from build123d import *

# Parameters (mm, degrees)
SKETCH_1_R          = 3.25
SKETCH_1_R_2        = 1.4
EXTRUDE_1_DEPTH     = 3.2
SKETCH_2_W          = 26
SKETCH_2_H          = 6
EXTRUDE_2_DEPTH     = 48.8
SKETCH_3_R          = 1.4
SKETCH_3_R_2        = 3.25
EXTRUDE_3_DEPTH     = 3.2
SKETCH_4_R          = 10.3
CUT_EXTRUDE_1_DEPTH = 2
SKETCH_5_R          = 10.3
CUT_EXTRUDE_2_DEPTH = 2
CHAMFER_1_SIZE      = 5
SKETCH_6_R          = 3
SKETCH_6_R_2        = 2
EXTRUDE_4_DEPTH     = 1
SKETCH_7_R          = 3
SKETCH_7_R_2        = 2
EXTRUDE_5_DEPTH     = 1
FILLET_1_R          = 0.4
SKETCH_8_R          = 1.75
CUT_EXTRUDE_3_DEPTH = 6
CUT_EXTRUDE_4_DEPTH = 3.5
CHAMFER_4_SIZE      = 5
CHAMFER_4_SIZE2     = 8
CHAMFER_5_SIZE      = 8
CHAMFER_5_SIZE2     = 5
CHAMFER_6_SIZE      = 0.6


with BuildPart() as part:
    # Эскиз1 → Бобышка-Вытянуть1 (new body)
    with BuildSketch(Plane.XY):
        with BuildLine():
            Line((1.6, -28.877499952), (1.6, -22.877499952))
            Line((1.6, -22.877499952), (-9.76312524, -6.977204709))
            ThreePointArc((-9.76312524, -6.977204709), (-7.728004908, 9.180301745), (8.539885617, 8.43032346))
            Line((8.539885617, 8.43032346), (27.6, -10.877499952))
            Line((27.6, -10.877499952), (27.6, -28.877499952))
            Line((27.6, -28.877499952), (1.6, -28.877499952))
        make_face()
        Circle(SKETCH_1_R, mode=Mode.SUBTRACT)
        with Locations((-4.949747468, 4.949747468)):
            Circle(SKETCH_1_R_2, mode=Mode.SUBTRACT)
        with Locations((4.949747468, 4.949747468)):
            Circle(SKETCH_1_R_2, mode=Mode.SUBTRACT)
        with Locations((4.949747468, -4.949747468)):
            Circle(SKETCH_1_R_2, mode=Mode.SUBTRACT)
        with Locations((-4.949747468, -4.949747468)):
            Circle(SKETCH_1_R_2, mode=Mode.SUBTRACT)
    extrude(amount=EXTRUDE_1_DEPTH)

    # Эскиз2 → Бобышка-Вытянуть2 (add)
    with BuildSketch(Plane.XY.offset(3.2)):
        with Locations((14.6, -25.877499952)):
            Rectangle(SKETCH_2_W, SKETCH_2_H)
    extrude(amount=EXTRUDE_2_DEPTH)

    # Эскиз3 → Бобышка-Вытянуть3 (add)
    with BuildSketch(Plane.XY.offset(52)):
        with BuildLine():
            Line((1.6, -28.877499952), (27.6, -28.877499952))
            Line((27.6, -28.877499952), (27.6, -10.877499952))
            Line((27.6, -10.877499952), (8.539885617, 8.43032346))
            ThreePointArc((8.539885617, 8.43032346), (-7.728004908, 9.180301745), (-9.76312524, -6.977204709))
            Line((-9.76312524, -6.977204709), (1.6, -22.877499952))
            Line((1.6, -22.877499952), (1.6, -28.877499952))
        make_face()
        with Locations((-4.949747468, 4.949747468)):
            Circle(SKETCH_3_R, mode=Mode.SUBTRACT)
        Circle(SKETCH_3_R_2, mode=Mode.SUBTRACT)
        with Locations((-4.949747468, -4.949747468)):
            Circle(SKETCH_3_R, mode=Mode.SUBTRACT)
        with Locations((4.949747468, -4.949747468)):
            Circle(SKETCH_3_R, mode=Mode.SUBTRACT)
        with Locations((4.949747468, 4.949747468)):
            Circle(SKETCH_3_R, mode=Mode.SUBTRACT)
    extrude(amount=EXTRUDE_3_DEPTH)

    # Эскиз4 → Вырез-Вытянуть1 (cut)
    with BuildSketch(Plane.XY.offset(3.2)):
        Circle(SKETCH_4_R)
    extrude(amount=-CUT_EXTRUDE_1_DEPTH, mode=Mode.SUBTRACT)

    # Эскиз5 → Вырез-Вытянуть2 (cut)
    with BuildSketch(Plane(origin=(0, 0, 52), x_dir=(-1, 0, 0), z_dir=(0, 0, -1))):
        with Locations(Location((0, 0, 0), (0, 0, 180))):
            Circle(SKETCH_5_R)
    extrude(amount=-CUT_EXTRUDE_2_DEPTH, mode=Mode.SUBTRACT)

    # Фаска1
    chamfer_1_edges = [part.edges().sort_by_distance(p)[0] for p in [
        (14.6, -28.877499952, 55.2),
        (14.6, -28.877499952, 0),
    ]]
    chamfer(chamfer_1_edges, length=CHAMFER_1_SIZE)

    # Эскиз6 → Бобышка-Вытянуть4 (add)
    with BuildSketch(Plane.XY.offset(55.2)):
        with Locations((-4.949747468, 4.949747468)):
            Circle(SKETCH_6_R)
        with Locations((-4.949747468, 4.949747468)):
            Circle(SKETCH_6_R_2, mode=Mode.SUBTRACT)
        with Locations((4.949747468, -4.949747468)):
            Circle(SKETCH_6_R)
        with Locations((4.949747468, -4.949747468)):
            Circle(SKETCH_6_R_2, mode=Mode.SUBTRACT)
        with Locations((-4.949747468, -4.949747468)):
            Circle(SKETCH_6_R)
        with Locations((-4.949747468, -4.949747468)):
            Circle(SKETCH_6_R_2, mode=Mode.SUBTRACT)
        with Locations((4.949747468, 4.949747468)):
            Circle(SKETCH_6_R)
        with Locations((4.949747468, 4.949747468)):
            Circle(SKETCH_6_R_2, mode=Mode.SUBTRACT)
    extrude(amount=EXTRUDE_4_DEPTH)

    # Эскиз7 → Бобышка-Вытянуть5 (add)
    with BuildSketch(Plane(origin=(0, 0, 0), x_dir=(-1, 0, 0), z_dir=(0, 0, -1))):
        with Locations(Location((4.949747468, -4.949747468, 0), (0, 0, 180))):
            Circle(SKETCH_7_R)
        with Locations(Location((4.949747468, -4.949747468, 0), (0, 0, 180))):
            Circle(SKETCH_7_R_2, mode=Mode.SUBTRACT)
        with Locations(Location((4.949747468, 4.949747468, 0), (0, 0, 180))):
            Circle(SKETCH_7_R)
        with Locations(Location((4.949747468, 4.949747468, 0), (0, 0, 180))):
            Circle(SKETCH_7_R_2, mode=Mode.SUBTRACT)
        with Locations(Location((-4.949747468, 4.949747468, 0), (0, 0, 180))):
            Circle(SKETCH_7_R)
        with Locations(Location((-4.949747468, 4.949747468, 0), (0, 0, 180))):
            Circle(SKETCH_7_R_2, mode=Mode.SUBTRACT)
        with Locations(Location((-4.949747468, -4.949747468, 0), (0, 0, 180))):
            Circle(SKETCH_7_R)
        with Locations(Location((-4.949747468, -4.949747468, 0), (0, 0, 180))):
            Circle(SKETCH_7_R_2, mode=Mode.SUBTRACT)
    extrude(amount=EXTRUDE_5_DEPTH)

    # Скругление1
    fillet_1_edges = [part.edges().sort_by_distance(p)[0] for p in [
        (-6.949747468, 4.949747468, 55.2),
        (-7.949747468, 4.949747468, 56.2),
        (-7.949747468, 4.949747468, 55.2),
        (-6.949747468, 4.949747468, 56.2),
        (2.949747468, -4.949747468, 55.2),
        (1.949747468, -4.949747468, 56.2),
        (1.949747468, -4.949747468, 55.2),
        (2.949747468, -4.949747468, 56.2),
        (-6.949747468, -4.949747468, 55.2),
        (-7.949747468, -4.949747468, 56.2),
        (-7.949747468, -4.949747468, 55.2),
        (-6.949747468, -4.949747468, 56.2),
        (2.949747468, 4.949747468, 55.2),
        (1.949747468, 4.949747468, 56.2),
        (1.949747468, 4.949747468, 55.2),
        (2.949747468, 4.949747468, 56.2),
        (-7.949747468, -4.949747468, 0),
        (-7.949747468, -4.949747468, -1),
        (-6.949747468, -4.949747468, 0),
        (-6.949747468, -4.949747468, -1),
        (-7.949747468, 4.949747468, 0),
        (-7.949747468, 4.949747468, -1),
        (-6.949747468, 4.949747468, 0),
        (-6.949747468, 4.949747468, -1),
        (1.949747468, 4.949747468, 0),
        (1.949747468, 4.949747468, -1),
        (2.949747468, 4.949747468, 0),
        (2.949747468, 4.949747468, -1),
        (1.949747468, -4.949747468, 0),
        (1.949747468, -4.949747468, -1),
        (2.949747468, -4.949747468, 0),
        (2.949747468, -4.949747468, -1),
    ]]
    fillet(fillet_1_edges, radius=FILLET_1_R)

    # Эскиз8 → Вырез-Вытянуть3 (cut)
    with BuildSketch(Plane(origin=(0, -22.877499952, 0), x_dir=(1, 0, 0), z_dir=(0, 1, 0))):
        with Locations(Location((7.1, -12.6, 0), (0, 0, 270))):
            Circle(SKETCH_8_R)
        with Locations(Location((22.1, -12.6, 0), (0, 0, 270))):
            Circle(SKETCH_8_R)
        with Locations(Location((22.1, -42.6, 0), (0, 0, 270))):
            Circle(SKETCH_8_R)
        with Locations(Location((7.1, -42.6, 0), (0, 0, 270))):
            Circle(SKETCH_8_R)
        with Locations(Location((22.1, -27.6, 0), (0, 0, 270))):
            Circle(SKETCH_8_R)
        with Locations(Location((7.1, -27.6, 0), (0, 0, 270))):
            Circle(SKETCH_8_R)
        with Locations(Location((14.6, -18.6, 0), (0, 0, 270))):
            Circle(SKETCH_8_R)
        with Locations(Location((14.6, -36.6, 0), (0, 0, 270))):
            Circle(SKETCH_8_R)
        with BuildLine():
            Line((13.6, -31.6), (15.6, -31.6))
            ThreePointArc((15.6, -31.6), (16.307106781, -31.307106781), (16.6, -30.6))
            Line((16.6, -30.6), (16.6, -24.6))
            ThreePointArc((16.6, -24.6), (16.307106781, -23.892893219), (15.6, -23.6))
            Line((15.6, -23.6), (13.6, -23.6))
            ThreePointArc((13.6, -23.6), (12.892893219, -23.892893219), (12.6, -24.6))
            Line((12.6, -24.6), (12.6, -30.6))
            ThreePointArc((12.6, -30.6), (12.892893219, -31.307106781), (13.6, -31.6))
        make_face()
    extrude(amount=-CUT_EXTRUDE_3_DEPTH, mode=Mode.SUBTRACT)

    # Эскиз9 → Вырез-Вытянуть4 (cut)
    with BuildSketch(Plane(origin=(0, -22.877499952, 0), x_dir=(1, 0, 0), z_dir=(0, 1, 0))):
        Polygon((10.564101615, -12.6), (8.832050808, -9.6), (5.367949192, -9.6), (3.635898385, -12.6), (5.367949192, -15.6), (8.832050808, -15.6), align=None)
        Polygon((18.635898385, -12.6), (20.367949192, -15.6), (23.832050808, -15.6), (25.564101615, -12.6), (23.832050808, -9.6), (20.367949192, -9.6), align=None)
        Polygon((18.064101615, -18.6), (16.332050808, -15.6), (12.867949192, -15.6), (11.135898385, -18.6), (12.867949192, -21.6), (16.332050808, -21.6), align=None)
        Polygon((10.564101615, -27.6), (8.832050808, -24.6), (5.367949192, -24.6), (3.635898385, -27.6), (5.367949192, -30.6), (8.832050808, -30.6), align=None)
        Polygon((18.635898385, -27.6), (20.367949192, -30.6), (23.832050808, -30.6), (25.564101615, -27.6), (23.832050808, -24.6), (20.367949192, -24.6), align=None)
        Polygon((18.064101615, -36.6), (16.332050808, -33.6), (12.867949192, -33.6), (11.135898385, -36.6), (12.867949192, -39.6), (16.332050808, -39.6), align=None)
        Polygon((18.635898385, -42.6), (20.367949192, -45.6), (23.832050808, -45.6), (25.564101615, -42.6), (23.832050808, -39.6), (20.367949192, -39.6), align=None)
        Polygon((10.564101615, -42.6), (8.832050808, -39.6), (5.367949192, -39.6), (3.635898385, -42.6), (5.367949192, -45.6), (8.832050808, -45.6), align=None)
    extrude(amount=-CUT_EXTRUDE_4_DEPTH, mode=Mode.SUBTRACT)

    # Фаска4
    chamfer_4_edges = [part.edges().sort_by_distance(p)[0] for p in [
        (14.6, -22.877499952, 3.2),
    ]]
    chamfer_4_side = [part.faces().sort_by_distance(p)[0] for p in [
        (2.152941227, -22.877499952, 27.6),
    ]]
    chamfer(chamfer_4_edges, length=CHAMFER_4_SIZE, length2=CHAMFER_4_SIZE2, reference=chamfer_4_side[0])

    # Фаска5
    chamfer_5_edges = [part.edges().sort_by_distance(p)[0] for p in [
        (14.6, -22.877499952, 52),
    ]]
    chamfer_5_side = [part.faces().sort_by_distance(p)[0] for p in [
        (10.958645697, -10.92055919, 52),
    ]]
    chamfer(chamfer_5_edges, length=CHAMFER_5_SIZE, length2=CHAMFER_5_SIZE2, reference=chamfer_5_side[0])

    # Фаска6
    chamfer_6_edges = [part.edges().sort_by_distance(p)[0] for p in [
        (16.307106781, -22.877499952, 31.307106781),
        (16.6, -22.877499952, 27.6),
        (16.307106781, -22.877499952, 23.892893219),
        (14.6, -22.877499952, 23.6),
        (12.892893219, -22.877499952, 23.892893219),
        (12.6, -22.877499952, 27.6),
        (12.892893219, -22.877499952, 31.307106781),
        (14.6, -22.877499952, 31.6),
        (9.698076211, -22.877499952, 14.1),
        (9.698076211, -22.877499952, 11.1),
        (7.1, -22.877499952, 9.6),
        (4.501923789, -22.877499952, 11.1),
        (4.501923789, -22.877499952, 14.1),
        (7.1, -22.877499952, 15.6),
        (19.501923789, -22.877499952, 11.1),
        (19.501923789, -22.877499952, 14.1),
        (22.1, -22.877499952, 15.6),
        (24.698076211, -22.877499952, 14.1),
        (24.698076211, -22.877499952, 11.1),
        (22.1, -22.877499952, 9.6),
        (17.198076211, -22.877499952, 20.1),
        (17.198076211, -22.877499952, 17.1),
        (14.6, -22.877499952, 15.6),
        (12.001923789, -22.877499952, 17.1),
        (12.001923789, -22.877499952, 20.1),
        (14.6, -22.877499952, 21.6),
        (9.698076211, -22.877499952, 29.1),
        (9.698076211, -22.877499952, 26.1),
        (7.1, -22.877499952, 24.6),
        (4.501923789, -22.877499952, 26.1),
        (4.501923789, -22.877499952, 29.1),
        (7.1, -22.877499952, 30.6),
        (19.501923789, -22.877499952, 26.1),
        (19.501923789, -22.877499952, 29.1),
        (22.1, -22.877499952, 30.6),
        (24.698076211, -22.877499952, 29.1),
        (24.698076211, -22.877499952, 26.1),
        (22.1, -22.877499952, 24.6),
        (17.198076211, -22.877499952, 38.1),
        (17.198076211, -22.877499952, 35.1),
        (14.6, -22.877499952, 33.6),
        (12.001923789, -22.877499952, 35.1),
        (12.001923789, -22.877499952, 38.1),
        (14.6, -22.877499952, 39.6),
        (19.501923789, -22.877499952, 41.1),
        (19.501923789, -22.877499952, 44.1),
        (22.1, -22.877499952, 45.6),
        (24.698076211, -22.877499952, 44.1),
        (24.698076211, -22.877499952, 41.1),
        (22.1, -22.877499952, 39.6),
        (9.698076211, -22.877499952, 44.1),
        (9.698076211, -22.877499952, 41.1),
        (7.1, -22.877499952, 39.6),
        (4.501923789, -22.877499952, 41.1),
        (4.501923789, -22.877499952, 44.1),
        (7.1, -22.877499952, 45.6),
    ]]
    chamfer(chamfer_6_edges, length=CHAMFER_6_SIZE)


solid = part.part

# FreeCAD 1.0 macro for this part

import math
import FreeCAD as App
import Part
import Sketcher
Q = App.Units.Quantity


def edges_at(feature, points):
    """Names of the edges that pass closest to the given points."""
    edges = feature.Shape.Edges
    near = lambda p: min(range(len(edges)), key=lambda i: edges[i].distToShape(Part.Vertex(*p))[0])
    return sorted({f"Edge{near(p) + 1}" for p in points})

doc = App.newDocument("Part")
body = doc.addObject("PartDesign::Body", "Body")

sketch1 = body.newObject("Sketcher::SketchObject", "Sketch")
sketch1.AttachmentSupport = (doc.getObject("XY_Plane"), [""])
sketch1.MapMode = "FlatFace"
sketch1.addGeometry(Part.LineSegment(App.Vector(1.6, -22.9, 0), App.Vector(1.6, -28.9, 0)), False)
sketch1.addGeometry(Part.LineSegment(App.Vector(1.6, -28.9, 0), App.Vector(27.6, -28.9, 0)), False)
sketch1.addGeometry(Part.LineSegment(App.Vector(27.6, -28.9, 0), App.Vector(27.6, -10.9, 0)), False)
sketch1.addGeometry(Part.LineSegment(App.Vector(27.6, -10.9, 0), App.Vector(8.5, 8.4, 0)), False)
sketch1.addGeometry(Part.ArcOfCircle(Part.Circle(App.Vector(0, 0, 0), App.Vector(0, 0, 1), 12), math.radians(45), math.radians(216)), False)
sketch1.addGeometry(Part.LineSegment(App.Vector(-9.8, -7, 0), App.Vector(1.6, -22.9, 0)), False)
sketch1.addGeometry(Part.Circle(App.Vector(4.9, -4.9, 0), App.Vector(0, 0, 1), 1.4), False)
sketch1.addGeometry(Part.Circle(App.Vector(-4.9, -4.9, 0), App.Vector(0, 0, 1), 1.4), False)
sketch1.addGeometry(Part.Circle(App.Vector(4.9, 4.9, 0), App.Vector(0, 0, 1), 1.4), False)
sketch1.addGeometry(Part.Circle(App.Vector(0, 0, 0), App.Vector(0, 0, 1), 3.2), False)
sketch1.addGeometry(Part.Circle(App.Vector(-4.9, 4.9, 0), App.Vector(0, 0, 1), 1.4), False)
sketch1.addConstraint(Sketcher.Constraint("Coincident", 0, 2, 1, 1))
sketch1.addConstraint(Sketcher.Constraint("Coincident", 1, 2, 2, 1))
sketch1.addConstraint(Sketcher.Constraint("Coincident", 2, 2, 3, 1))
sketch1.addConstraint(Sketcher.Constraint("Tangent", 3, 2, 4, 1))
sketch1.addConstraint(Sketcher.Constraint("Tangent", 4, 2, 5, 1))
sketch1.addConstraint(Sketcher.Constraint("Coincident", 5, 2, 0, 1))
sketch1.addConstraint(Sketcher.Constraint("Vertical", 0))
sketch1.addConstraint(Sketcher.Constraint("Horizontal", 1))
sketch1.addConstraint(Sketcher.Constraint("Vertical", 2))
sketch1.addConstraint(Sketcher.Constraint("Coincident", 4, 3, -1, 1))
sketch1.addConstraint(Sketcher.Constraint("Coincident", 9, 3, -1, 1))
sketch1.addConstraint(Sketcher.Constraint("Equal", 6, 7))
sketch1.addConstraint(Sketcher.Constraint("Equal", 7, 8))
sketch1.addConstraint(Sketcher.Constraint("Equal", 8, 10))
sketch1.addConstraint(Sketcher.Constraint("Symmetric", 7, 3, 8, 3, -1, 1))
sketch1.addConstraint(Sketcher.Constraint("Symmetric", 6, 3, 10, 3, -1, 1))
sketch1.addConstraint(Sketcher.Constraint("Symmetric", 6, 3, 7, 3, -2))
sketch1.addConstraint(Sketcher.Constraint("Radius", 4, Q("12 mm")))
sketch1.addConstraint(Sketcher.Constraint("Diameter", 6, Q("2.8 mm")))
sketch1.addConstraint(Sketcher.Constraint("Diameter", 9, Q("6.5 mm")))
sketch1.addConstraint(Sketcher.Constraint("DistanceX", 1, 1, 1, 2, Q("26 mm")))
sketch1.addConstraint(Sketcher.Constraint("DistanceY", 0, 2, 0, 1, Q("6 mm")))
sketch1.addConstraint(Sketcher.Constraint("DistanceY", 2, 1, 2, 2, Q("18 mm")))
sketch1.addConstraint(Sketcher.Constraint("DistanceX", -1, 1, 0, 2, Q("1.6 mm")))
sketch1.addConstraint(Sketcher.Constraint("DistanceY", 0, 2, -1, 1, Q("28.8775 mm")))
sketch1.addConstraint(Sketcher.Constraint("DistanceX", 8, 3, 3, 2, Q("3.590138 mm")))
sketch1.addConstraint(Sketcher.Constraint("DistanceY", 6, 3, 3, 2, Q("13.380071 mm")))
pad1 = body.newObject("PartDesign::Pad", "Pad")
pad1.Profile = sketch1
pad1.Length = 3.2

sketch2 = body.newObject("Sketcher::SketchObject", "Sketch001")
sketch2.AttachmentSupport = (doc.getObject("XY_Plane"), [""])
sketch2.MapMode = "FlatFace"
sketch2.AttachmentOffset = App.Placement(App.Vector(0, 0, 3.2), App.Rotation())
sketch2.addGeometry(Part.LineSegment(App.Vector(2, -23, 0), App.Vector(2, -29, 0)), False)
sketch2.addGeometry(Part.LineSegment(App.Vector(2, -29, 0), App.Vector(28, -29, 0)), False)
sketch2.addGeometry(Part.LineSegment(App.Vector(28, -29, 0), App.Vector(28, -23, 0)), False)
sketch2.addGeometry(Part.LineSegment(App.Vector(28, -23, 0), App.Vector(2, -23, 0)), False)
sketch2.addConstraint(Sketcher.Constraint("Coincident", 0, 2, 1, 1))
sketch2.addConstraint(Sketcher.Constraint("Coincident", 1, 2, 2, 1))
sketch2.addConstraint(Sketcher.Constraint("Coincident", 2, 2, 3, 1))
sketch2.addConstraint(Sketcher.Constraint("Coincident", 3, 2, 0, 1))
sketch2.addConstraint(Sketcher.Constraint("Vertical", 0))
sketch2.addConstraint(Sketcher.Constraint("Horizontal", 1))
sketch2.addConstraint(Sketcher.Constraint("Vertical", 2))
sketch2.addConstraint(Sketcher.Constraint("Horizontal", 3))
sketch2.addConstraint(Sketcher.Constraint("DistanceX", 1, 1, 1, 2, Q("26 mm")))
sketch2.addConstraint(Sketcher.Constraint("DistanceY", 0, 2, 0, 1, Q("6 mm")))
sketch2.addConstraint(Sketcher.Constraint("DistanceX", -1, 1, 0, 2, Q("1.6 mm")))
sketch2.addConstraint(Sketcher.Constraint("DistanceY", 0, 2, -1, 1, Q("28.8775 mm")))
pad2 = body.newObject("PartDesign::Pad", "Pad001")
pad2.Profile = sketch2
pad2.Length = 48.8

sketch3 = body.newObject("Sketcher::SketchObject", "Sketch002")
sketch3.AttachmentSupport = (doc.getObject("XY_Plane"), [""])
sketch3.MapMode = "FlatFace"
sketch3.AttachmentOffset = App.Placement(App.Vector(0, 0, 52), App.Rotation())
sketch3.addGeometry(Part.LineSegment(App.Vector(1.6, -28.9, 0), App.Vector(27.6, -28.9, 0)), False)
sketch3.addGeometry(Part.LineSegment(App.Vector(27.6, -28.9, 0), App.Vector(27.6, -10.9, 0)), False)
sketch3.addGeometry(Part.LineSegment(App.Vector(27.6, -10.9, 0), App.Vector(8.5, 8.4, 0)), False)
sketch3.addGeometry(Part.ArcOfCircle(Part.Circle(App.Vector(0, 0, 0), App.Vector(0, 0, 1), 12), math.radians(45), math.radians(216)), False)
sketch3.addGeometry(Part.LineSegment(App.Vector(-9.8, -7, 0), App.Vector(1.6, -22.9, 0)), False)
sketch3.addGeometry(Part.LineSegment(App.Vector(1.6, -22.9, 0), App.Vector(1.6, -28.9, 0)), False)
sketch3.addGeometry(Part.Circle(App.Vector(-4.9, -4.9, 0), App.Vector(0, 0, 1), 1.4), False)
sketch3.addGeometry(Part.Circle(App.Vector(4.9, -4.9, 0), App.Vector(0, 0, 1), 1.4), False)
sketch3.addGeometry(Part.Circle(App.Vector(-4.9, 4.9, 0), App.Vector(0, 0, 1), 1.4), False)
sketch3.addGeometry(Part.Circle(App.Vector(0, 0, 0), App.Vector(0, 0, 1), 3.2), False)
sketch3.addGeometry(Part.Circle(App.Vector(4.9, 4.9, 0), App.Vector(0, 0, 1), 1.4), False)
sketch3.addConstraint(Sketcher.Constraint("Coincident", 0, 2, 1, 1))
sketch3.addConstraint(Sketcher.Constraint("Coincident", 1, 2, 2, 1))
sketch3.addConstraint(Sketcher.Constraint("Tangent", 2, 2, 3, 1))
sketch3.addConstraint(Sketcher.Constraint("Tangent", 3, 2, 4, 1))
sketch3.addConstraint(Sketcher.Constraint("Coincident", 4, 2, 5, 1))
sketch3.addConstraint(Sketcher.Constraint("Coincident", 5, 2, 0, 1))
sketch3.addConstraint(Sketcher.Constraint("Horizontal", 0))
sketch3.addConstraint(Sketcher.Constraint("Vertical", 1))
sketch3.addConstraint(Sketcher.Constraint("Vertical", 5))
sketch3.addConstraint(Sketcher.Constraint("Coincident", 3, 3, -1, 1))
sketch3.addConstraint(Sketcher.Constraint("Coincident", 9, 3, -1, 1))
sketch3.addConstraint(Sketcher.Constraint("Equal", 6, 7))
sketch3.addConstraint(Sketcher.Constraint("Equal", 7, 8))
sketch3.addConstraint(Sketcher.Constraint("Equal", 8, 10))
sketch3.addConstraint(Sketcher.Constraint("Symmetric", 7, 3, 8, 3, -1, 1))
sketch3.addConstraint(Sketcher.Constraint("Symmetric", 6, 3, 10, 3, -1, 1))
sketch3.addConstraint(Sketcher.Constraint("Symmetric", 6, 3, 7, 3, -2))
sketch3.addConstraint(Sketcher.Constraint("Radius", 3, Q("12 mm")))
sketch3.addConstraint(Sketcher.Constraint("Diameter", 6, Q("2.8 mm")))
sketch3.addConstraint(Sketcher.Constraint("Diameter", 9, Q("6.5 mm")))
sketch3.addConstraint(Sketcher.Constraint("DistanceX", 0, 1, 0, 2, Q("26 mm")))
sketch3.addConstraint(Sketcher.Constraint("DistanceY", 1, 1, 1, 2, Q("18 mm")))
sketch3.addConstraint(Sketcher.Constraint("DistanceY", 5, 2, 5, 1, Q("6 mm")))
sketch3.addConstraint(Sketcher.Constraint("DistanceX", -1, 1, 0, 2, Q("27.6 mm")))
sketch3.addConstraint(Sketcher.Constraint("DistanceY", 0, 2, -1, 1, Q("28.8775 mm")))
sketch3.addConstraint(Sketcher.Constraint("DistanceX", 10, 3, 2, 2, Q("3.590138 mm")))
sketch3.addConstraint(Sketcher.Constraint("DistanceY", 7, 3, 2, 2, Q("13.380071 mm")))
pad3 = body.newObject("PartDesign::Pad", "Pad002")
pad3.Profile = sketch3
pad3.Length = 3.2

sketch4 = body.newObject("Sketcher::SketchObject", "Sketch003")
sketch4.AttachmentSupport = (doc.getObject("XY_Plane"), [""])
sketch4.MapMode = "FlatFace"
sketch4.AttachmentOffset = App.Placement(App.Vector(0, 0, 3.2), App.Rotation())
sketch4.addGeometry(Part.Circle(App.Vector(0, 0, 0), App.Vector(0, 0, 1), 10), False)
sketch4.addConstraint(Sketcher.Constraint("Coincident", 0, 3, -1, 1))
sketch4.addConstraint(Sketcher.Constraint("Diameter", 0, Q("20.6 mm")))
pocket1 = body.newObject("PartDesign::Pocket", "Pocket")
pocket1.Profile = sketch4
pocket1.Length = 2

sketch5 = body.newObject("Sketcher::SketchObject", "Sketch004")
sketch5.AttachmentSupport = (doc.getObject("XY_Plane"), [""])
sketch5.MapMode = "FlatFace"
sketch5.AttachmentOffset = App.Placement(App.Vector(0, 0, 52), App.Rotation())
sketch5.addGeometry(Part.Circle(App.Vector(0, 0, 0), App.Vector(0, 0, 1), 10), False)
sketch5.addConstraint(Sketcher.Constraint("Coincident", 0, 3, -1, 1))
sketch5.addConstraint(Sketcher.Constraint("Diameter", 0, Q("20.6 mm")))
pocket2 = body.newObject("PartDesign::Pocket", "Pocket001")
pocket2.Profile = sketch5
pocket2.Length = 2
pocket2.Reversed = True
doc.recompute()

chamfer = body.newObject("PartDesign::Chamfer", "Chamfer")
chamfer.Base = (pocket2, edges_at(pocket2, [(14.6, -28.877, 55.2), (14.6, -28.877, 0)]))
chamfer.Size = 5

sketch6 = body.newObject("Sketcher::SketchObject", "Sketch005")
sketch6.AttachmentSupport = (doc.getObject("XY_Plane"), [""])
sketch6.MapMode = "FlatFace"
sketch6.AttachmentOffset = App.Placement(App.Vector(0, 0, 55.2), App.Rotation())
sketch6.addGeometry(Part.Circle(App.Vector(-4.9, 4.9, 0), App.Vector(0, 0, 1), 3), False)
sketch6.addGeometry(Part.Circle(App.Vector(-4.9, 4.9, 0), App.Vector(0, 0, 1), 2), False)
sketch6.addGeometry(Part.Circle(App.Vector(4.9, -4.9, 0), App.Vector(0, 0, 1), 3), False)
sketch6.addGeometry(Part.Circle(App.Vector(4.9, -4.9, 0), App.Vector(0, 0, 1), 2), False)
sketch6.addGeometry(Part.Circle(App.Vector(-4.9, -4.9, 0), App.Vector(0, 0, 1), 3), False)
sketch6.addGeometry(Part.Circle(App.Vector(-4.9, -4.9, 0), App.Vector(0, 0, 1), 2), False)
sketch6.addGeometry(Part.Circle(App.Vector(4.9, 4.9, 0), App.Vector(0, 0, 1), 3), False)
sketch6.addGeometry(Part.Circle(App.Vector(4.9, 4.9, 0), App.Vector(0, 0, 1), 2), False)
sketch6.addConstraint(Sketcher.Constraint("Coincident", 1, 3, 0, 3))
sketch6.addConstraint(Sketcher.Constraint("Coincident", 3, 3, 2, 3))
sketch6.addConstraint(Sketcher.Constraint("Coincident", 5, 3, 4, 3))
sketch6.addConstraint(Sketcher.Constraint("Coincident", 7, 3, 6, 3))
sketch6.addConstraint(Sketcher.Constraint("Equal", 0, 2))
sketch6.addConstraint(Sketcher.Constraint("Equal", 1, 3))
sketch6.addConstraint(Sketcher.Constraint("Equal", 2, 4))
sketch6.addConstraint(Sketcher.Constraint("Equal", 3, 5))
sketch6.addConstraint(Sketcher.Constraint("Equal", 4, 6))
sketch6.addConstraint(Sketcher.Constraint("Equal", 5, 7))
sketch6.addConstraint(Sketcher.Constraint("Symmetric", 0, 3, 2, 3, -1, 1))
sketch6.addConstraint(Sketcher.Constraint("Symmetric", 4, 3, 6, 3, -1, 1))
sketch6.addConstraint(Sketcher.Constraint("Symmetric", 2, 3, 4, 3, -2))
sketch6.addConstraint(Sketcher.Constraint("Diameter", 0, Q("6 mm")))
sketch6.addConstraint(Sketcher.Constraint("Diameter", 1, Q("4 mm")))
sketch6.addConstraint(Sketcher.Constraint("DistanceX", 0, 3, -1, 1, Q("4.949747 mm")))
sketch6.addConstraint(Sketcher.Constraint("DistanceY", -1, 1, 0, 3, Q("4.949747 mm")))
pad4 = body.newObject("PartDesign::Pad", "Pad003")
pad4.Profile = sketch6
pad4.Length = 1

sketch7 = body.newObject("Sketcher::SketchObject", "Sketch006")
sketch7.AttachmentSupport = (doc.getObject("XY_Plane"), [""])
sketch7.MapMode = "FlatFace"
sketch7.addGeometry(Part.Circle(App.Vector(-4.9, -4.9, 0), App.Vector(0, 0, 1), 3), False)
sketch7.addGeometry(Part.Circle(App.Vector(-4.9, -4.9, 0), App.Vector(0, 0, 1), 2), False)
sketch7.addGeometry(Part.Circle(App.Vector(-4.9, 4.9, 0), App.Vector(0, 0, 1), 3), False)
sketch7.addGeometry(Part.Circle(App.Vector(-4.9, 4.9, 0), App.Vector(0, 0, 1), 2), False)
sketch7.addGeometry(Part.Circle(App.Vector(4.9, 4.9, 0), App.Vector(0, 0, 1), 3), False)
sketch7.addGeometry(Part.Circle(App.Vector(4.9, 4.9, 0), App.Vector(0, 0, 1), 2), False)
sketch7.addGeometry(Part.Circle(App.Vector(4.9, -4.9, 0), App.Vector(0, 0, 1), 3), False)
sketch7.addGeometry(Part.Circle(App.Vector(4.9, -4.9, 0), App.Vector(0, 0, 1), 2), False)
sketch7.addConstraint(Sketcher.Constraint("Coincident", 1, 3, 0, 3))
sketch7.addConstraint(Sketcher.Constraint("Coincident", 3, 3, 2, 3))
sketch7.addConstraint(Sketcher.Constraint("Coincident", 5, 3, 4, 3))
sketch7.addConstraint(Sketcher.Constraint("Coincident", 7, 3, 6, 3))
sketch7.addConstraint(Sketcher.Constraint("Equal", 0, 2))
sketch7.addConstraint(Sketcher.Constraint("Equal", 1, 3))
sketch7.addConstraint(Sketcher.Constraint("Equal", 2, 4))
sketch7.addConstraint(Sketcher.Constraint("Equal", 3, 5))
sketch7.addConstraint(Sketcher.Constraint("Equal", 4, 6))
sketch7.addConstraint(Sketcher.Constraint("Equal", 5, 7))
sketch7.addConstraint(Sketcher.Constraint("Symmetric", 0, 3, 4, 3, -1, 1))
sketch7.addConstraint(Sketcher.Constraint("Symmetric", 2, 3, 6, 3, -1, 1))
sketch7.addConstraint(Sketcher.Constraint("Symmetric", 2, 3, 4, 3, -2))
sketch7.addConstraint(Sketcher.Constraint("Diameter", 0, Q("6 mm")))
sketch7.addConstraint(Sketcher.Constraint("Diameter", 1, Q("4 mm")))
sketch7.addConstraint(Sketcher.Constraint("DistanceX", 0, 3, -1, 1, Q("4.949747 mm")))
sketch7.addConstraint(Sketcher.Constraint("DistanceY", 0, 3, -1, 1, Q("4.949747 mm")))
pad5 = body.newObject("PartDesign::Pad", "Pad004")
pad5.Profile = sketch7
pad5.Length = 1
pad5.Reversed = True
doc.recompute()

fillet = body.newObject("PartDesign::Fillet", "Fillet")
fillet.Base = (pad5, edges_at(pad5, [
    (-6.95, 4.95, 55.2),
    (-7.95, 4.95, 56.2),
    (-7.95, 4.95, 55.2),
    (-6.95, 4.95, 56.2),
    (2.95, -4.95, 55.2),
    (1.95, -4.95, 56.2),
    (1.95, -4.95, 55.2),
    (2.95, -4.95, 56.2),
    (-6.95, -4.95, 55.2),
    (-7.95, -4.95, 56.2),
    (-7.95, -4.95, 55.2),
    (-6.95, -4.95, 56.2),
    (2.95, 4.95, 55.2),
    (1.95, 4.95, 56.2),
    (1.95, 4.95, 55.2),
    (2.95, 4.95, 56.2),
    (-7.95, -4.95, 0),
    (-7.95, -4.95, -1),
    (-6.95, -4.95, 0),
    (-6.95, -4.95, -1),
    (-7.95, 4.95, 0),
    (-7.95, 4.95, -1),
    (-6.95, 4.95, 0),
    (-6.95, 4.95, -1),
    (1.95, 4.95, 0),
    (1.95, 4.95, -1),
    (2.95, 4.95, 0),
    (2.95, 4.95, -1),
    (1.95, -4.95, 0),
    (1.95, -4.95, -1),
    (2.95, -4.95, 0),
    (2.95, -4.95, -1),
]))
fillet.Radius = 0.4

sketch8 = body.newObject("Sketcher::SketchObject", "Sketch007")
sketch8.AttachmentSupport = (doc.getObject("XZ_Plane"), [""])
sketch8.MapMode = "FlatFace"
sketch8.AttachmentOffset = App.Placement(App.Vector(0, 0, 22.8775), App.Rotation())
sketch8.addGeometry(Part.Circle(App.Vector(7.1, 12.6, 0), App.Vector(0, 0, 1), 1.8), False)
sketch8.addGeometry(Part.Circle(App.Vector(22.1, 12.6, 0), App.Vector(0, 0, 1), 1.8), False)
sketch8.addGeometry(Part.Circle(App.Vector(22.1, 42.6, 0), App.Vector(0, 0, 1), 1.8), False)
sketch8.addGeometry(Part.Circle(App.Vector(7.1, 42.6, 0), App.Vector(0, 0, 1), 1.8), False)
sketch8.addGeometry(Part.Circle(App.Vector(22.1, 27.6, 0), App.Vector(0, 0, 1), 1.8), False)
sketch8.addGeometry(Part.Circle(App.Vector(7.1, 27.6, 0), App.Vector(0, 0, 1), 1.8), False)
sketch8.addGeometry(Part.Circle(App.Vector(14.6, 18.6, 0), App.Vector(0, 0, 1), 1.8), False)
sketch8.addGeometry(Part.Circle(App.Vector(14.6, 36.6, 0), App.Vector(0, 0, 1), 1.8), False)
sketch8.addGeometry(Part.LineSegment(App.Vector(13.6, 31.6, 0), App.Vector(15.6, 31.6, 0)), False)
sketch8.addGeometry(Part.ArcOfCircle(Part.Circle(App.Vector(15.6, 30.6, 0), App.Vector(0, 0, 1), 1), math.radians(0), math.radians(90)), False)
sketch8.addGeometry(Part.LineSegment(App.Vector(16.6, 30.6, 0), App.Vector(16.6, 24.6, 0)), False)
sketch8.addGeometry(Part.ArcOfCircle(Part.Circle(App.Vector(15.6, 24.6, 0), App.Vector(0, 0, 1), 1), math.radians(-90), math.radians(0)), False)
sketch8.addGeometry(Part.LineSegment(App.Vector(15.6, 23.6, 0), App.Vector(13.6, 23.6, 0)), False)
sketch8.addGeometry(Part.ArcOfCircle(Part.Circle(App.Vector(13.6, 24.6, 0), App.Vector(0, 0, 1), 1), math.radians(-180), math.radians(-90)), False)
sketch8.addGeometry(Part.LineSegment(App.Vector(12.6, 24.6, 0), App.Vector(12.6, 30.6, 0)), False)
sketch8.addGeometry(Part.ArcOfCircle(Part.Circle(App.Vector(13.6, 30.6, 0), App.Vector(0, 0, 1), 1), math.radians(90), math.radians(180)), False)
sketch8.addConstraint(Sketcher.Constraint("Tangent", 8, 2, 9, 2))
sketch8.addConstraint(Sketcher.Constraint("Tangent", 9, 1, 10, 1))
sketch8.addConstraint(Sketcher.Constraint("Tangent", 10, 2, 11, 2))
sketch8.addConstraint(Sketcher.Constraint("Tangent", 11, 1, 12, 1))
sketch8.addConstraint(Sketcher.Constraint("Tangent", 12, 2, 13, 2))
sketch8.addConstraint(Sketcher.Constraint("Tangent", 13, 1, 14, 1))
sketch8.addConstraint(Sketcher.Constraint("Tangent", 14, 2, 15, 2))
sketch8.addConstraint(Sketcher.Constraint("Tangent", 15, 1, 8, 1))
sketch8.addConstraint(Sketcher.Constraint("Horizontal", 8))
sketch8.addConstraint(Sketcher.Constraint("Vertical", 10))
sketch8.addConstraint(Sketcher.Constraint("Horizontal", 12))
sketch8.addConstraint(Sketcher.Constraint("Vertical", 14))
sketch8.addConstraint(Sketcher.Constraint("Equal", 0, 1))
sketch8.addConstraint(Sketcher.Constraint("Equal", 1, 2))
sketch8.addConstraint(Sketcher.Constraint("Equal", 2, 3))
sketch8.addConstraint(Sketcher.Constraint("Equal", 3, 4))
sketch8.addConstraint(Sketcher.Constraint("Equal", 4, 5))
sketch8.addConstraint(Sketcher.Constraint("Equal", 5, 6))
sketch8.addConstraint(Sketcher.Constraint("Equal", 6, 7))
sketch8.addConstraint(Sketcher.Constraint("Equal", 9, 11))
sketch8.addConstraint(Sketcher.Constraint("Equal", 11, 13))
sketch8.addConstraint(Sketcher.Constraint("Equal", 13, 15))
sketch8.addConstraint(Sketcher.Constraint("Horizontal", 0, 3, 1, 3))
sketch8.addConstraint(Sketcher.Constraint("Horizontal", 2, 3, 3, 3))
sketch8.addConstraint(Sketcher.Constraint("Horizontal", 4, 3, 5, 3))
sketch8.addConstraint(Sketcher.Constraint("Vertical", 1, 3, 2, 3))
sketch8.addConstraint(Sketcher.Constraint("Vertical", 0, 3, 3, 3))
sketch8.addConstraint(Sketcher.Constraint("Vertical", 2, 3, 4, 3))
sketch8.addConstraint(Sketcher.Constraint("Vertical", 3, 3, 5, 3))
sketch8.addConstraint(Sketcher.Constraint("Vertical", 6, 3, 7, 3))
sketch8.addConstraint(Sketcher.Constraint("Radius", 9, Q("1 mm")))
sketch8.addConstraint(Sketcher.Constraint("Diameter", 0, Q("3.5 mm")))
sketch8.addConstraint(Sketcher.Constraint("DistanceX", 8, 1, 8, 2, Q("2 mm")))
sketch8.addConstraint(Sketcher.Constraint("DistanceY", 10, 2, 10, 1, Q("6 mm")))
sketch8.addConstraint(Sketcher.Constraint("DistanceX", 0, 3, 1, 3, Q("15 mm")))
sketch8.addConstraint(Sketcher.Constraint("DistanceY", 1, 3, 2, 3, Q("30 mm")))
sketch8.addConstraint(Sketcher.Constraint("DistanceY", 4, 3, 2, 3, Q("15 mm")))
sketch8.addConstraint(Sketcher.Constraint("DistanceY", 0, 3, 6, 3, Q("6 mm")))
sketch8.addConstraint(Sketcher.Constraint("DistanceY", 7, 3, 3, 3, Q("6 mm")))
sketch8.addConstraint(Sketcher.Constraint("DistanceX", 7, 3, 9, 3, Q("1 mm")))
sketch8.addConstraint(Sketcher.Constraint("DistanceY", 9, 3, 7, 3, Q("6 mm")))
sketch8.addConstraint(Sketcher.Constraint("DistanceX", -1, 1, 0, 3, Q("7.1 mm")))
sketch8.addConstraint(Sketcher.Constraint("DistanceY", -1, 1, 0, 3, Q("12.6 mm")))
sketch8.addConstraint(Sketcher.Constraint("DistanceX", -1, 1, 6, 3, Q("14.6 mm")))
pocket3 = body.newObject("PartDesign::Pocket", "Pocket002")
pocket3.Profile = sketch8
pocket3.Length = 6
pocket3.Reversed = True

sketch9 = body.newObject("Sketcher::SketchObject", "Sketch008")
sketch9.AttachmentSupport = (doc.getObject("XZ_Plane"), [""])
sketch9.MapMode = "FlatFace"
sketch9.AttachmentOffset = App.Placement(App.Vector(0, 0, 22.8775), App.Rotation())
sketch9.addGeometry(Part.LineSegment(App.Vector(10.6, 12.6, 0), App.Vector(8.8, 9.6, 0)), False)
sketch9.addGeometry(Part.LineSegment(App.Vector(8.8, 9.6, 0), App.Vector(5.4, 9.6, 0)), False)
sketch9.addGeometry(Part.LineSegment(App.Vector(5.4, 9.6, 0), App.Vector(3.6, 12.6, 0)), False)
sketch9.addGeometry(Part.LineSegment(App.Vector(3.6, 12.6, 0), App.Vector(5.4, 15.6, 0)), False)
sketch9.addGeometry(Part.LineSegment(App.Vector(5.4, 15.6, 0), App.Vector(8.8, 15.6, 0)), False)
sketch9.addGeometry(Part.LineSegment(App.Vector(8.8, 15.6, 0), App.Vector(10.6, 12.6, 0)), False)
sketch9.addGeometry(Part.LineSegment(App.Vector(18.6, 12.6, 0), App.Vector(20.4, 15.6, 0)), False)
sketch9.addGeometry(Part.LineSegment(App.Vector(20.4, 15.6, 0), App.Vector(23.8, 15.6, 0)), False)
sketch9.addGeometry(Part.LineSegment(App.Vector(23.8, 15.6, 0), App.Vector(25.6, 12.6, 0)), False)
sketch9.addGeometry(Part.LineSegment(App.Vector(25.6, 12.6, 0), App.Vector(23.8, 9.6, 0)), False)
sketch9.addGeometry(Part.LineSegment(App.Vector(23.8, 9.6, 0), App.Vector(20.4, 9.6, 0)), False)
sketch9.addGeometry(Part.LineSegment(App.Vector(20.4, 9.6, 0), App.Vector(18.6, 12.6, 0)), False)
sketch9.addGeometry(Part.LineSegment(App.Vector(18.1, 18.6, 0), App.Vector(16.3, 15.6, 0)), False)
sketch9.addGeometry(Part.LineSegment(App.Vector(16.3, 15.6, 0), App.Vector(12.9, 15.6, 0)), False)
sketch9.addGeometry(Part.LineSegment(App.Vector(12.9, 15.6, 0), App.Vector(11.1, 18.6, 0)), False)
sketch9.addGeometry(Part.LineSegment(App.Vector(11.1, 18.6, 0), App.Vector(12.9, 21.6, 0)), False)
sketch9.addGeometry(Part.LineSegment(App.Vector(12.9, 21.6, 0), App.Vector(16.3, 21.6, 0)), False)
sketch9.addGeometry(Part.LineSegment(App.Vector(16.3, 21.6, 0), App.Vector(18.1, 18.6, 0)), False)
sketch9.addGeometry(Part.LineSegment(App.Vector(10.6, 27.6, 0), App.Vector(8.8, 24.6, 0)), False)
sketch9.addGeometry(Part.LineSegment(App.Vector(8.8, 24.6, 0), App.Vector(5.4, 24.6, 0)), False)
sketch9.addGeometry(Part.LineSegment(App.Vector(5.4, 24.6, 0), App.Vector(3.6, 27.6, 0)), False)
sketch9.addGeometry(Part.LineSegment(App.Vector(3.6, 27.6, 0), App.Vector(5.4, 30.6, 0)), False)
sketch9.addGeometry(Part.LineSegment(App.Vector(5.4, 30.6, 0), App.Vector(8.8, 30.6, 0)), False)
sketch9.addGeometry(Part.LineSegment(App.Vector(8.8, 30.6, 0), App.Vector(10.6, 27.6, 0)), False)
sketch9.addGeometry(Part.LineSegment(App.Vector(18.6, 27.6, 0), App.Vector(20.4, 30.6, 0)), False)
sketch9.addGeometry(Part.LineSegment(App.Vector(20.4, 30.6, 0), App.Vector(23.8, 30.6, 0)), False)
sketch9.addGeometry(Part.LineSegment(App.Vector(23.8, 30.6, 0), App.Vector(25.6, 27.6, 0)), False)
sketch9.addGeometry(Part.LineSegment(App.Vector(25.6, 27.6, 0), App.Vector(23.8, 24.6, 0)), False)
sketch9.addGeometry(Part.LineSegment(App.Vector(23.8, 24.6, 0), App.Vector(20.4, 24.6, 0)), False)
sketch9.addGeometry(Part.LineSegment(App.Vector(20.4, 24.6, 0), App.Vector(18.6, 27.6, 0)), False)
sketch9.addGeometry(Part.LineSegment(App.Vector(18.1, 36.6, 0), App.Vector(16.3, 33.6, 0)), False)
sketch9.addGeometry(Part.LineSegment(App.Vector(16.3, 33.6, 0), App.Vector(12.9, 33.6, 0)), False)
sketch9.addGeometry(Part.LineSegment(App.Vector(12.9, 33.6, 0), App.Vector(11.1, 36.6, 0)), False)
sketch9.addGeometry(Part.LineSegment(App.Vector(11.1, 36.6, 0), App.Vector(12.9, 39.6, 0)), False)
sketch9.addGeometry(Part.LineSegment(App.Vector(12.9, 39.6, 0), App.Vector(16.3, 39.6, 0)), False)
sketch9.addGeometry(Part.LineSegment(App.Vector(16.3, 39.6, 0), App.Vector(18.1, 36.6, 0)), False)
sketch9.addGeometry(Part.LineSegment(App.Vector(18.6, 42.6, 0), App.Vector(20.4, 45.6, 0)), False)
sketch9.addGeometry(Part.LineSegment(App.Vector(20.4, 45.6, 0), App.Vector(23.8, 45.6, 0)), False)
sketch9.addGeometry(Part.LineSegment(App.Vector(23.8, 45.6, 0), App.Vector(25.6, 42.6, 0)), False)
sketch9.addGeometry(Part.LineSegment(App.Vector(25.6, 42.6, 0), App.Vector(23.8, 39.6, 0)), False)
sketch9.addGeometry(Part.LineSegment(App.Vector(23.8, 39.6, 0), App.Vector(20.4, 39.6, 0)), False)
sketch9.addGeometry(Part.LineSegment(App.Vector(20.4, 39.6, 0), App.Vector(18.6, 42.6, 0)), False)
sketch9.addGeometry(Part.LineSegment(App.Vector(10.6, 42.6, 0), App.Vector(8.8, 39.6, 0)), False)
sketch9.addGeometry(Part.LineSegment(App.Vector(8.8, 39.6, 0), App.Vector(5.4, 39.6, 0)), False)
sketch9.addGeometry(Part.LineSegment(App.Vector(5.4, 39.6, 0), App.Vector(3.6, 42.6, 0)), False)
sketch9.addGeometry(Part.LineSegment(App.Vector(3.6, 42.6, 0), App.Vector(5.4, 45.6, 0)), False)
sketch9.addGeometry(Part.LineSegment(App.Vector(5.4, 45.6, 0), App.Vector(8.8, 45.6, 0)), False)
sketch9.addGeometry(Part.LineSegment(App.Vector(8.8, 45.6, 0), App.Vector(10.6, 42.6, 0)), False)
sketch9.addConstraint(Sketcher.Constraint("Coincident", 0, 2, 1, 1))
sketch9.addConstraint(Sketcher.Constraint("Coincident", 1, 2, 2, 1))
sketch9.addConstraint(Sketcher.Constraint("Coincident", 2, 2, 3, 1))
sketch9.addConstraint(Sketcher.Constraint("Coincident", 3, 2, 4, 1))
sketch9.addConstraint(Sketcher.Constraint("Coincident", 4, 2, 5, 1))
sketch9.addConstraint(Sketcher.Constraint("Coincident", 5, 2, 0, 1))
sketch9.addConstraint(Sketcher.Constraint("Coincident", 6, 2, 7, 1))
sketch9.addConstraint(Sketcher.Constraint("Coincident", 7, 2, 8, 1))
sketch9.addConstraint(Sketcher.Constraint("Coincident", 8, 2, 9, 1))
sketch9.addConstraint(Sketcher.Constraint("Coincident", 9, 2, 10, 1))
sketch9.addConstraint(Sketcher.Constraint("Coincident", 10, 2, 11, 1))
sketch9.addConstraint(Sketcher.Constraint("Coincident", 11, 2, 6, 1))
sketch9.addConstraint(Sketcher.Constraint("Coincident", 12, 2, 13, 1))
sketch9.addConstraint(Sketcher.Constraint("Coincident", 13, 2, 14, 1))
sketch9.addConstraint(Sketcher.Constraint("Coincident", 14, 2, 15, 1))
sketch9.addConstraint(Sketcher.Constraint("Coincident", 15, 2, 16, 1))
sketch9.addConstraint(Sketcher.Constraint("Coincident", 16, 2, 17, 1))
sketch9.addConstraint(Sketcher.Constraint("Coincident", 17, 2, 12, 1))
sketch9.addConstraint(Sketcher.Constraint("Coincident", 18, 2, 19, 1))
sketch9.addConstraint(Sketcher.Constraint("Coincident", 19, 2, 20, 1))
sketch9.addConstraint(Sketcher.Constraint("Coincident", 20, 2, 21, 1))
sketch9.addConstraint(Sketcher.Constraint("Coincident", 21, 2, 22, 1))
sketch9.addConstraint(Sketcher.Constraint("Coincident", 22, 2, 23, 1))
sketch9.addConstraint(Sketcher.Constraint("Coincident", 23, 2, 18, 1))
sketch9.addConstraint(Sketcher.Constraint("Coincident", 24, 2, 25, 1))
sketch9.addConstraint(Sketcher.Constraint("Coincident", 25, 2, 26, 1))
sketch9.addConstraint(Sketcher.Constraint("Coincident", 26, 2, 27, 1))
sketch9.addConstraint(Sketcher.Constraint("Coincident", 27, 2, 28, 1))
sketch9.addConstraint(Sketcher.Constraint("Coincident", 28, 2, 29, 1))
sketch9.addConstraint(Sketcher.Constraint("Coincident", 29, 2, 24, 1))
sketch9.addConstraint(Sketcher.Constraint("Coincident", 30, 2, 31, 1))
sketch9.addConstraint(Sketcher.Constraint("Coincident", 31, 2, 32, 1))
sketch9.addConstraint(Sketcher.Constraint("Coincident", 32, 2, 33, 1))
sketch9.addConstraint(Sketcher.Constraint("Coincident", 33, 2, 34, 1))
sketch9.addConstraint(Sketcher.Constraint("Coincident", 34, 2, 35, 1))
sketch9.addConstraint(Sketcher.Constraint("Coincident", 35, 2, 30, 1))
sketch9.addConstraint(Sketcher.Constraint("Coincident", 36, 2, 37, 1))
sketch9.addConstraint(Sketcher.Constraint("Coincident", 37, 2, 38, 1))
sketch9.addConstraint(Sketcher.Constraint("Coincident", 38, 2, 39, 1))
sketch9.addConstraint(Sketcher.Constraint("Coincident", 39, 2, 40, 1))
sketch9.addConstraint(Sketcher.Constraint("Coincident", 40, 2, 41, 1))
sketch9.addConstraint(Sketcher.Constraint("Coincident", 41, 2, 36, 1))
sketch9.addConstraint(Sketcher.Constraint("Coincident", 42, 2, 43, 1))
sketch9.addConstraint(Sketcher.Constraint("Coincident", 43, 2, 44, 1))
sketch9.addConstraint(Sketcher.Constraint("Coincident", 44, 2, 45, 1))
sketch9.addConstraint(Sketcher.Constraint("Coincident", 45, 2, 46, 1))
sketch9.addConstraint(Sketcher.Constraint("Coincident", 46, 2, 47, 1))
sketch9.addConstraint(Sketcher.Constraint("Coincident", 47, 2, 42, 1))
sketch9.addConstraint(Sketcher.Constraint("Horizontal", 1))
sketch9.addConstraint(Sketcher.Constraint("Horizontal", 4))
sketch9.addConstraint(Sketcher.Constraint("Horizontal", 7))
sketch9.addConstraint(Sketcher.Constraint("Horizontal", 10))
sketch9.addConstraint(Sketcher.Constraint("Horizontal", 13))
sketch9.addConstraint(Sketcher.Constraint("Horizontal", 16))
sketch9.addConstraint(Sketcher.Constraint("Horizontal", 19))
sketch9.addConstraint(Sketcher.Constraint("Horizontal", 22))
sketch9.addConstraint(Sketcher.Constraint("Horizontal", 25))
sketch9.addConstraint(Sketcher.Constraint("Horizontal", 28))
sketch9.addConstraint(Sketcher.Constraint("Horizontal", 31))
sketch9.addConstraint(Sketcher.Constraint("Horizontal", 34))
sketch9.addConstraint(Sketcher.Constraint("Horizontal", 37))
sketch9.addConstraint(Sketcher.Constraint("Horizontal", 40))
sketch9.addConstraint(Sketcher.Constraint("Horizontal", 43))
sketch9.addConstraint(Sketcher.Constraint("Horizontal", 46))
sketch9.addConstraint(Sketcher.Constraint("Parallel", 0, 3))
sketch9.addConstraint(Sketcher.Constraint("Parallel", 2, 5))
sketch9.addConstraint(Sketcher.Constraint("Parallel", 3, 6))
sketch9.addConstraint(Sketcher.Constraint("Parallel", 5, 8))
sketch9.addConstraint(Sketcher.Constraint("Parallel", 6, 9))
sketch9.addConstraint(Sketcher.Constraint("Parallel", 8, 11))
sketch9.addConstraint(Sketcher.Constraint("Parallel", 9, 12))
sketch9.addConstraint(Sketcher.Constraint("Parallel", 11, 14))
sketch9.addConstraint(Sketcher.Constraint("Parallel", 12, 15))
sketch9.addConstraint(Sketcher.Constraint("Parallel", 14, 17))
sketch9.addConstraint(Sketcher.Constraint("Parallel", 15, 18))
sketch9.addConstraint(Sketcher.Constraint("Parallel", 17, 20))
sketch9.addConstraint(Sketcher.Constraint("Parallel", 18, 21))
sketch9.addConstraint(Sketcher.Constraint("Parallel", 20, 23))
sketch9.addConstraint(Sketcher.Constraint("Parallel", 21, 24))
sketch9.addConstraint(Sketcher.Constraint("Parallel", 23, 26))
sketch9.addConstraint(Sketcher.Constraint("Parallel", 24, 27))
sketch9.addConstraint(Sketcher.Constraint("Parallel", 26, 29))
sketch9.addConstraint(Sketcher.Constraint("Parallel", 27, 30))
sketch9.addConstraint(Sketcher.Constraint("Parallel", 29, 32))
sketch9.addConstraint(Sketcher.Constraint("Parallel", 30, 33))
sketch9.addConstraint(Sketcher.Constraint("Parallel", 32, 35))
sketch9.addConstraint(Sketcher.Constraint("Parallel", 33, 36))
sketch9.addConstraint(Sketcher.Constraint("Parallel", 35, 38))
sketch9.addConstraint(Sketcher.Constraint("Parallel", 36, 39))
sketch9.addConstraint(Sketcher.Constraint("Parallel", 38, 41))
sketch9.addConstraint(Sketcher.Constraint("Parallel", 39, 42))
sketch9.addConstraint(Sketcher.Constraint("Parallel", 41, 44))
sketch9.addConstraint(Sketcher.Constraint("Parallel", 42, 45))
sketch9.addConstraint(Sketcher.Constraint("Parallel", 44, 47))
sketch9.addConstraint(Sketcher.Constraint("Horizontal", 2, 2, 5, 2))
sketch9.addConstraint(Sketcher.Constraint("Horizontal", 4, 2, 6, 2))
sketch9.addConstraint(Sketcher.Constraint("Horizontal", 5, 2, 8, 2))
sketch9.addConstraint(Sketcher.Constraint("Horizontal", 1, 2, 9, 2))
sketch9.addConstraint(Sketcher.Constraint("Horizontal", 8, 2, 11, 2))
sketch9.addConstraint(Sketcher.Constraint("Horizontal", 7, 2, 12, 2))
sketch9.addConstraint(Sketcher.Constraint("Horizontal", 14, 2, 17, 2))
sketch9.addConstraint(Sketcher.Constraint("Horizontal", 20, 2, 23, 2))
sketch9.addConstraint(Sketcher.Constraint("Horizontal", 22, 2, 24, 2))
sketch9.addConstraint(Sketcher.Constraint("Horizontal", 23, 2, 26, 2))
sketch9.addConstraint(Sketcher.Constraint("Horizontal", 19, 2, 27, 2))
sketch9.addConstraint(Sketcher.Constraint("Horizontal", 26, 2, 29, 2))
sketch9.addConstraint(Sketcher.Constraint("Horizontal", 32, 2, 35, 2))
sketch9.addConstraint(Sketcher.Constraint("Horizontal", 34, 2, 39, 2))
sketch9.addConstraint(Sketcher.Constraint("Horizontal", 38, 2, 41, 2))
sketch9.addConstraint(Sketcher.Constraint("Horizontal", 40, 2, 42, 2))
sketch9.addConstraint(Sketcher.Constraint("Horizontal", 41, 2, 44, 2))
sketch9.addConstraint(Sketcher.Constraint("Horizontal", 37, 2, 45, 2))
sketch9.addConstraint(Sketcher.Constraint("Horizontal", 44, 2, 47, 2))
sketch9.addConstraint(Sketcher.Constraint("Vertical", 1, 2, 3, 2))
sketch9.addConstraint(Sketcher.Constraint("Vertical", 0, 2, 4, 2))
sketch9.addConstraint(Sketcher.Constraint("Vertical", 13, 2, 15, 2))
sketch9.addConstraint(Sketcher.Constraint("Vertical", 4, 2, 18, 2))
sketch9.addConstraint(Sketcher.Constraint("Vertical", 3, 2, 19, 2))
sketch9.addConstraint(Sketcher.Constraint("Vertical", 2, 2, 20, 2))
sketch9.addConstraint(Sketcher.Constraint("Vertical", 19, 2, 21, 2))
sketch9.addConstraint(Sketcher.Constraint("Vertical", 10, 2, 24, 2))
sketch9.addConstraint(Sketcher.Constraint("Vertical", 9, 2, 25, 2))
sketch9.addConstraint(Sketcher.Constraint("Vertical", 16, 2, 30, 2))
sketch9.addConstraint(Sketcher.Constraint("Vertical", 15, 2, 31, 2))
sketch9.addConstraint(Sketcher.Constraint("Vertical", 14, 2, 32, 2))
sketch9.addConstraint(Sketcher.Constraint("Vertical", 31, 2, 33, 2))
sketch9.addConstraint(Sketcher.Constraint("Vertical", 28, 2, 36, 2))
sketch9.addConstraint(Sketcher.Constraint("Vertical", 27, 2, 37, 2))
sketch9.addConstraint(Sketcher.Constraint("Vertical", 26, 2, 38, 2))
sketch9.addConstraint(Sketcher.Constraint("Vertical", 37, 2, 39, 2))
sketch9.addConstraint(Sketcher.Constraint("Vertical", 22, 2, 42, 2))
sketch9.addConstraint(Sketcher.Constraint("Vertical", 21, 2, 43, 2))
sketch9.addConstraint(Sketcher.Constraint("Equal", 4, 7))
sketch9.addConstraint(Sketcher.Constraint("Equal", 10, 13))
sketch9.addConstraint(Sketcher.Constraint("Equal", 11, 12))
sketch9.addConstraint(Sketcher.Constraint("Angle", 0, Q("-120 deg")))
sketch9.addConstraint(Sketcher.Constraint("DistanceY", 1, 2, 2, 2, Q("3 mm")))
sketch9.addConstraint(Sketcher.Constraint("DistanceX", 3, 2, 6, 2, Q("15 mm")))
sketch9.addConstraint(Sketcher.Constraint("DistanceY", 15, 2, 18, 2, Q("3 mm")))
sketch9.addConstraint(Sketcher.Constraint("DistanceY", 24, 2, 30, 2, Q("3 mm")))
sketch9.addConstraint(Sketcher.Constraint("DistanceY", -1, 1, 0, 2, Q("9.6 mm")))
sketch9.addConstraint(Sketcher.Constraint("DistanceX", 12, 2, 7, 2, Q("7.5 mm")))
sketch9.addConstraint(Sketcher.Constraint("DistanceX", 1, 2, 1, 1, Q("3.464102 mm")))
sketch9.addConstraint(Sketcher.Constraint("DistanceX", -1, 1, 2, 2, Q("3.635898 mm")))
pocket4 = body.newObject("PartDesign::Pocket", "Pocket003")
pocket4.Profile = sketch9
pocket4.Length = 3.5
pocket4.Reversed = True
doc.recompute()

chamfer2 = body.newObject("PartDesign::Chamfer", "Chamfer001")
chamfer2.Base = (pocket4, edges_at(pocket4, [(14.6, -22.877, 3.2)]))
chamfer2.ChamferType = "Two distances"
chamfer2.Size = 5
chamfer2.Size2 = 8
doc.recompute()

chamfer3 = body.newObject("PartDesign::Chamfer", "Chamfer002")
chamfer3.Base = (chamfer2, edges_at(chamfer2, [(14.6, -22.877, 52)]))
chamfer3.ChamferType = "Two distances"
chamfer3.Size = 8
chamfer3.Size2 = 5
chamfer3.FlipDirection = True
doc.recompute()

chamfer4 = body.newObject("PartDesign::Chamfer", "Chamfer003")
chamfer4.Base = (chamfer3, edges_at(chamfer3, [
    (16.307, -22.877, 31.307),
    (16.6, -22.877, 27.6),
    (16.307, -22.877, 23.893),
    (14.6, -22.877, 23.6),
    (12.893, -22.877, 23.893),
    (12.6, -22.877, 27.6),
    (12.893, -22.877, 31.307),
    (14.6, -22.877, 31.6),
    (9.698, -22.877, 14.1),
    (9.698, -22.877, 11.1),
    (7.1, -22.877, 9.6),
    (4.502, -22.877, 11.1),
    (4.502, -22.877, 14.1),
    (7.1, -22.877, 15.6),
    (19.502, -22.877, 11.1),
    (19.502, -22.877, 14.1),
    (22.1, -22.877, 15.6),
    (24.698, -22.877, 14.1),
    (24.698, -22.877, 11.1),
    (22.1, -22.877, 9.6),
    (17.198, -22.877, 20.1),
    (17.198, -22.877, 17.1),
    (14.6, -22.877, 15.6),
    (12.002, -22.877, 17.1),
    (12.002, -22.877, 20.1),
    (14.6, -22.877, 21.6),
    (9.698, -22.877, 29.1),
    (9.698, -22.877, 26.1),
    (7.1, -22.877, 24.6),
    (4.502, -22.877, 26.1),
    (4.502, -22.877, 29.1),
    (7.1, -22.877, 30.6),
    (19.502, -22.877, 26.1),
    (19.502, -22.877, 29.1),
    (22.1, -22.877, 30.6),
    (24.698, -22.877, 29.1),
    (24.698, -22.877, 26.1),
    (22.1, -22.877, 24.6),
    (17.198, -22.877, 38.1),
    (17.198, -22.877, 35.1),
    (14.6, -22.877, 33.6),
    (12.002, -22.877, 35.1),
    (12.002, -22.877, 38.1),
    (14.6, -22.877, 39.6),
    (19.502, -22.877, 41.1),
    (19.502, -22.877, 44.1),
    (22.1, -22.877, 45.6),
    (24.698, -22.877, 44.1),
    (24.698, -22.877, 41.1),
    (22.1, -22.877, 39.6),
    (9.698, -22.877, 44.1),
    (9.698, -22.877, 41.1),
    (7.1, -22.877, 39.6),
    (4.502, -22.877, 41.1),
    (4.502, -22.877, 44.1),
    (7.1, -22.877, 45.6),
]))
chamfer4.Size = 0.6

doc.recompute()
